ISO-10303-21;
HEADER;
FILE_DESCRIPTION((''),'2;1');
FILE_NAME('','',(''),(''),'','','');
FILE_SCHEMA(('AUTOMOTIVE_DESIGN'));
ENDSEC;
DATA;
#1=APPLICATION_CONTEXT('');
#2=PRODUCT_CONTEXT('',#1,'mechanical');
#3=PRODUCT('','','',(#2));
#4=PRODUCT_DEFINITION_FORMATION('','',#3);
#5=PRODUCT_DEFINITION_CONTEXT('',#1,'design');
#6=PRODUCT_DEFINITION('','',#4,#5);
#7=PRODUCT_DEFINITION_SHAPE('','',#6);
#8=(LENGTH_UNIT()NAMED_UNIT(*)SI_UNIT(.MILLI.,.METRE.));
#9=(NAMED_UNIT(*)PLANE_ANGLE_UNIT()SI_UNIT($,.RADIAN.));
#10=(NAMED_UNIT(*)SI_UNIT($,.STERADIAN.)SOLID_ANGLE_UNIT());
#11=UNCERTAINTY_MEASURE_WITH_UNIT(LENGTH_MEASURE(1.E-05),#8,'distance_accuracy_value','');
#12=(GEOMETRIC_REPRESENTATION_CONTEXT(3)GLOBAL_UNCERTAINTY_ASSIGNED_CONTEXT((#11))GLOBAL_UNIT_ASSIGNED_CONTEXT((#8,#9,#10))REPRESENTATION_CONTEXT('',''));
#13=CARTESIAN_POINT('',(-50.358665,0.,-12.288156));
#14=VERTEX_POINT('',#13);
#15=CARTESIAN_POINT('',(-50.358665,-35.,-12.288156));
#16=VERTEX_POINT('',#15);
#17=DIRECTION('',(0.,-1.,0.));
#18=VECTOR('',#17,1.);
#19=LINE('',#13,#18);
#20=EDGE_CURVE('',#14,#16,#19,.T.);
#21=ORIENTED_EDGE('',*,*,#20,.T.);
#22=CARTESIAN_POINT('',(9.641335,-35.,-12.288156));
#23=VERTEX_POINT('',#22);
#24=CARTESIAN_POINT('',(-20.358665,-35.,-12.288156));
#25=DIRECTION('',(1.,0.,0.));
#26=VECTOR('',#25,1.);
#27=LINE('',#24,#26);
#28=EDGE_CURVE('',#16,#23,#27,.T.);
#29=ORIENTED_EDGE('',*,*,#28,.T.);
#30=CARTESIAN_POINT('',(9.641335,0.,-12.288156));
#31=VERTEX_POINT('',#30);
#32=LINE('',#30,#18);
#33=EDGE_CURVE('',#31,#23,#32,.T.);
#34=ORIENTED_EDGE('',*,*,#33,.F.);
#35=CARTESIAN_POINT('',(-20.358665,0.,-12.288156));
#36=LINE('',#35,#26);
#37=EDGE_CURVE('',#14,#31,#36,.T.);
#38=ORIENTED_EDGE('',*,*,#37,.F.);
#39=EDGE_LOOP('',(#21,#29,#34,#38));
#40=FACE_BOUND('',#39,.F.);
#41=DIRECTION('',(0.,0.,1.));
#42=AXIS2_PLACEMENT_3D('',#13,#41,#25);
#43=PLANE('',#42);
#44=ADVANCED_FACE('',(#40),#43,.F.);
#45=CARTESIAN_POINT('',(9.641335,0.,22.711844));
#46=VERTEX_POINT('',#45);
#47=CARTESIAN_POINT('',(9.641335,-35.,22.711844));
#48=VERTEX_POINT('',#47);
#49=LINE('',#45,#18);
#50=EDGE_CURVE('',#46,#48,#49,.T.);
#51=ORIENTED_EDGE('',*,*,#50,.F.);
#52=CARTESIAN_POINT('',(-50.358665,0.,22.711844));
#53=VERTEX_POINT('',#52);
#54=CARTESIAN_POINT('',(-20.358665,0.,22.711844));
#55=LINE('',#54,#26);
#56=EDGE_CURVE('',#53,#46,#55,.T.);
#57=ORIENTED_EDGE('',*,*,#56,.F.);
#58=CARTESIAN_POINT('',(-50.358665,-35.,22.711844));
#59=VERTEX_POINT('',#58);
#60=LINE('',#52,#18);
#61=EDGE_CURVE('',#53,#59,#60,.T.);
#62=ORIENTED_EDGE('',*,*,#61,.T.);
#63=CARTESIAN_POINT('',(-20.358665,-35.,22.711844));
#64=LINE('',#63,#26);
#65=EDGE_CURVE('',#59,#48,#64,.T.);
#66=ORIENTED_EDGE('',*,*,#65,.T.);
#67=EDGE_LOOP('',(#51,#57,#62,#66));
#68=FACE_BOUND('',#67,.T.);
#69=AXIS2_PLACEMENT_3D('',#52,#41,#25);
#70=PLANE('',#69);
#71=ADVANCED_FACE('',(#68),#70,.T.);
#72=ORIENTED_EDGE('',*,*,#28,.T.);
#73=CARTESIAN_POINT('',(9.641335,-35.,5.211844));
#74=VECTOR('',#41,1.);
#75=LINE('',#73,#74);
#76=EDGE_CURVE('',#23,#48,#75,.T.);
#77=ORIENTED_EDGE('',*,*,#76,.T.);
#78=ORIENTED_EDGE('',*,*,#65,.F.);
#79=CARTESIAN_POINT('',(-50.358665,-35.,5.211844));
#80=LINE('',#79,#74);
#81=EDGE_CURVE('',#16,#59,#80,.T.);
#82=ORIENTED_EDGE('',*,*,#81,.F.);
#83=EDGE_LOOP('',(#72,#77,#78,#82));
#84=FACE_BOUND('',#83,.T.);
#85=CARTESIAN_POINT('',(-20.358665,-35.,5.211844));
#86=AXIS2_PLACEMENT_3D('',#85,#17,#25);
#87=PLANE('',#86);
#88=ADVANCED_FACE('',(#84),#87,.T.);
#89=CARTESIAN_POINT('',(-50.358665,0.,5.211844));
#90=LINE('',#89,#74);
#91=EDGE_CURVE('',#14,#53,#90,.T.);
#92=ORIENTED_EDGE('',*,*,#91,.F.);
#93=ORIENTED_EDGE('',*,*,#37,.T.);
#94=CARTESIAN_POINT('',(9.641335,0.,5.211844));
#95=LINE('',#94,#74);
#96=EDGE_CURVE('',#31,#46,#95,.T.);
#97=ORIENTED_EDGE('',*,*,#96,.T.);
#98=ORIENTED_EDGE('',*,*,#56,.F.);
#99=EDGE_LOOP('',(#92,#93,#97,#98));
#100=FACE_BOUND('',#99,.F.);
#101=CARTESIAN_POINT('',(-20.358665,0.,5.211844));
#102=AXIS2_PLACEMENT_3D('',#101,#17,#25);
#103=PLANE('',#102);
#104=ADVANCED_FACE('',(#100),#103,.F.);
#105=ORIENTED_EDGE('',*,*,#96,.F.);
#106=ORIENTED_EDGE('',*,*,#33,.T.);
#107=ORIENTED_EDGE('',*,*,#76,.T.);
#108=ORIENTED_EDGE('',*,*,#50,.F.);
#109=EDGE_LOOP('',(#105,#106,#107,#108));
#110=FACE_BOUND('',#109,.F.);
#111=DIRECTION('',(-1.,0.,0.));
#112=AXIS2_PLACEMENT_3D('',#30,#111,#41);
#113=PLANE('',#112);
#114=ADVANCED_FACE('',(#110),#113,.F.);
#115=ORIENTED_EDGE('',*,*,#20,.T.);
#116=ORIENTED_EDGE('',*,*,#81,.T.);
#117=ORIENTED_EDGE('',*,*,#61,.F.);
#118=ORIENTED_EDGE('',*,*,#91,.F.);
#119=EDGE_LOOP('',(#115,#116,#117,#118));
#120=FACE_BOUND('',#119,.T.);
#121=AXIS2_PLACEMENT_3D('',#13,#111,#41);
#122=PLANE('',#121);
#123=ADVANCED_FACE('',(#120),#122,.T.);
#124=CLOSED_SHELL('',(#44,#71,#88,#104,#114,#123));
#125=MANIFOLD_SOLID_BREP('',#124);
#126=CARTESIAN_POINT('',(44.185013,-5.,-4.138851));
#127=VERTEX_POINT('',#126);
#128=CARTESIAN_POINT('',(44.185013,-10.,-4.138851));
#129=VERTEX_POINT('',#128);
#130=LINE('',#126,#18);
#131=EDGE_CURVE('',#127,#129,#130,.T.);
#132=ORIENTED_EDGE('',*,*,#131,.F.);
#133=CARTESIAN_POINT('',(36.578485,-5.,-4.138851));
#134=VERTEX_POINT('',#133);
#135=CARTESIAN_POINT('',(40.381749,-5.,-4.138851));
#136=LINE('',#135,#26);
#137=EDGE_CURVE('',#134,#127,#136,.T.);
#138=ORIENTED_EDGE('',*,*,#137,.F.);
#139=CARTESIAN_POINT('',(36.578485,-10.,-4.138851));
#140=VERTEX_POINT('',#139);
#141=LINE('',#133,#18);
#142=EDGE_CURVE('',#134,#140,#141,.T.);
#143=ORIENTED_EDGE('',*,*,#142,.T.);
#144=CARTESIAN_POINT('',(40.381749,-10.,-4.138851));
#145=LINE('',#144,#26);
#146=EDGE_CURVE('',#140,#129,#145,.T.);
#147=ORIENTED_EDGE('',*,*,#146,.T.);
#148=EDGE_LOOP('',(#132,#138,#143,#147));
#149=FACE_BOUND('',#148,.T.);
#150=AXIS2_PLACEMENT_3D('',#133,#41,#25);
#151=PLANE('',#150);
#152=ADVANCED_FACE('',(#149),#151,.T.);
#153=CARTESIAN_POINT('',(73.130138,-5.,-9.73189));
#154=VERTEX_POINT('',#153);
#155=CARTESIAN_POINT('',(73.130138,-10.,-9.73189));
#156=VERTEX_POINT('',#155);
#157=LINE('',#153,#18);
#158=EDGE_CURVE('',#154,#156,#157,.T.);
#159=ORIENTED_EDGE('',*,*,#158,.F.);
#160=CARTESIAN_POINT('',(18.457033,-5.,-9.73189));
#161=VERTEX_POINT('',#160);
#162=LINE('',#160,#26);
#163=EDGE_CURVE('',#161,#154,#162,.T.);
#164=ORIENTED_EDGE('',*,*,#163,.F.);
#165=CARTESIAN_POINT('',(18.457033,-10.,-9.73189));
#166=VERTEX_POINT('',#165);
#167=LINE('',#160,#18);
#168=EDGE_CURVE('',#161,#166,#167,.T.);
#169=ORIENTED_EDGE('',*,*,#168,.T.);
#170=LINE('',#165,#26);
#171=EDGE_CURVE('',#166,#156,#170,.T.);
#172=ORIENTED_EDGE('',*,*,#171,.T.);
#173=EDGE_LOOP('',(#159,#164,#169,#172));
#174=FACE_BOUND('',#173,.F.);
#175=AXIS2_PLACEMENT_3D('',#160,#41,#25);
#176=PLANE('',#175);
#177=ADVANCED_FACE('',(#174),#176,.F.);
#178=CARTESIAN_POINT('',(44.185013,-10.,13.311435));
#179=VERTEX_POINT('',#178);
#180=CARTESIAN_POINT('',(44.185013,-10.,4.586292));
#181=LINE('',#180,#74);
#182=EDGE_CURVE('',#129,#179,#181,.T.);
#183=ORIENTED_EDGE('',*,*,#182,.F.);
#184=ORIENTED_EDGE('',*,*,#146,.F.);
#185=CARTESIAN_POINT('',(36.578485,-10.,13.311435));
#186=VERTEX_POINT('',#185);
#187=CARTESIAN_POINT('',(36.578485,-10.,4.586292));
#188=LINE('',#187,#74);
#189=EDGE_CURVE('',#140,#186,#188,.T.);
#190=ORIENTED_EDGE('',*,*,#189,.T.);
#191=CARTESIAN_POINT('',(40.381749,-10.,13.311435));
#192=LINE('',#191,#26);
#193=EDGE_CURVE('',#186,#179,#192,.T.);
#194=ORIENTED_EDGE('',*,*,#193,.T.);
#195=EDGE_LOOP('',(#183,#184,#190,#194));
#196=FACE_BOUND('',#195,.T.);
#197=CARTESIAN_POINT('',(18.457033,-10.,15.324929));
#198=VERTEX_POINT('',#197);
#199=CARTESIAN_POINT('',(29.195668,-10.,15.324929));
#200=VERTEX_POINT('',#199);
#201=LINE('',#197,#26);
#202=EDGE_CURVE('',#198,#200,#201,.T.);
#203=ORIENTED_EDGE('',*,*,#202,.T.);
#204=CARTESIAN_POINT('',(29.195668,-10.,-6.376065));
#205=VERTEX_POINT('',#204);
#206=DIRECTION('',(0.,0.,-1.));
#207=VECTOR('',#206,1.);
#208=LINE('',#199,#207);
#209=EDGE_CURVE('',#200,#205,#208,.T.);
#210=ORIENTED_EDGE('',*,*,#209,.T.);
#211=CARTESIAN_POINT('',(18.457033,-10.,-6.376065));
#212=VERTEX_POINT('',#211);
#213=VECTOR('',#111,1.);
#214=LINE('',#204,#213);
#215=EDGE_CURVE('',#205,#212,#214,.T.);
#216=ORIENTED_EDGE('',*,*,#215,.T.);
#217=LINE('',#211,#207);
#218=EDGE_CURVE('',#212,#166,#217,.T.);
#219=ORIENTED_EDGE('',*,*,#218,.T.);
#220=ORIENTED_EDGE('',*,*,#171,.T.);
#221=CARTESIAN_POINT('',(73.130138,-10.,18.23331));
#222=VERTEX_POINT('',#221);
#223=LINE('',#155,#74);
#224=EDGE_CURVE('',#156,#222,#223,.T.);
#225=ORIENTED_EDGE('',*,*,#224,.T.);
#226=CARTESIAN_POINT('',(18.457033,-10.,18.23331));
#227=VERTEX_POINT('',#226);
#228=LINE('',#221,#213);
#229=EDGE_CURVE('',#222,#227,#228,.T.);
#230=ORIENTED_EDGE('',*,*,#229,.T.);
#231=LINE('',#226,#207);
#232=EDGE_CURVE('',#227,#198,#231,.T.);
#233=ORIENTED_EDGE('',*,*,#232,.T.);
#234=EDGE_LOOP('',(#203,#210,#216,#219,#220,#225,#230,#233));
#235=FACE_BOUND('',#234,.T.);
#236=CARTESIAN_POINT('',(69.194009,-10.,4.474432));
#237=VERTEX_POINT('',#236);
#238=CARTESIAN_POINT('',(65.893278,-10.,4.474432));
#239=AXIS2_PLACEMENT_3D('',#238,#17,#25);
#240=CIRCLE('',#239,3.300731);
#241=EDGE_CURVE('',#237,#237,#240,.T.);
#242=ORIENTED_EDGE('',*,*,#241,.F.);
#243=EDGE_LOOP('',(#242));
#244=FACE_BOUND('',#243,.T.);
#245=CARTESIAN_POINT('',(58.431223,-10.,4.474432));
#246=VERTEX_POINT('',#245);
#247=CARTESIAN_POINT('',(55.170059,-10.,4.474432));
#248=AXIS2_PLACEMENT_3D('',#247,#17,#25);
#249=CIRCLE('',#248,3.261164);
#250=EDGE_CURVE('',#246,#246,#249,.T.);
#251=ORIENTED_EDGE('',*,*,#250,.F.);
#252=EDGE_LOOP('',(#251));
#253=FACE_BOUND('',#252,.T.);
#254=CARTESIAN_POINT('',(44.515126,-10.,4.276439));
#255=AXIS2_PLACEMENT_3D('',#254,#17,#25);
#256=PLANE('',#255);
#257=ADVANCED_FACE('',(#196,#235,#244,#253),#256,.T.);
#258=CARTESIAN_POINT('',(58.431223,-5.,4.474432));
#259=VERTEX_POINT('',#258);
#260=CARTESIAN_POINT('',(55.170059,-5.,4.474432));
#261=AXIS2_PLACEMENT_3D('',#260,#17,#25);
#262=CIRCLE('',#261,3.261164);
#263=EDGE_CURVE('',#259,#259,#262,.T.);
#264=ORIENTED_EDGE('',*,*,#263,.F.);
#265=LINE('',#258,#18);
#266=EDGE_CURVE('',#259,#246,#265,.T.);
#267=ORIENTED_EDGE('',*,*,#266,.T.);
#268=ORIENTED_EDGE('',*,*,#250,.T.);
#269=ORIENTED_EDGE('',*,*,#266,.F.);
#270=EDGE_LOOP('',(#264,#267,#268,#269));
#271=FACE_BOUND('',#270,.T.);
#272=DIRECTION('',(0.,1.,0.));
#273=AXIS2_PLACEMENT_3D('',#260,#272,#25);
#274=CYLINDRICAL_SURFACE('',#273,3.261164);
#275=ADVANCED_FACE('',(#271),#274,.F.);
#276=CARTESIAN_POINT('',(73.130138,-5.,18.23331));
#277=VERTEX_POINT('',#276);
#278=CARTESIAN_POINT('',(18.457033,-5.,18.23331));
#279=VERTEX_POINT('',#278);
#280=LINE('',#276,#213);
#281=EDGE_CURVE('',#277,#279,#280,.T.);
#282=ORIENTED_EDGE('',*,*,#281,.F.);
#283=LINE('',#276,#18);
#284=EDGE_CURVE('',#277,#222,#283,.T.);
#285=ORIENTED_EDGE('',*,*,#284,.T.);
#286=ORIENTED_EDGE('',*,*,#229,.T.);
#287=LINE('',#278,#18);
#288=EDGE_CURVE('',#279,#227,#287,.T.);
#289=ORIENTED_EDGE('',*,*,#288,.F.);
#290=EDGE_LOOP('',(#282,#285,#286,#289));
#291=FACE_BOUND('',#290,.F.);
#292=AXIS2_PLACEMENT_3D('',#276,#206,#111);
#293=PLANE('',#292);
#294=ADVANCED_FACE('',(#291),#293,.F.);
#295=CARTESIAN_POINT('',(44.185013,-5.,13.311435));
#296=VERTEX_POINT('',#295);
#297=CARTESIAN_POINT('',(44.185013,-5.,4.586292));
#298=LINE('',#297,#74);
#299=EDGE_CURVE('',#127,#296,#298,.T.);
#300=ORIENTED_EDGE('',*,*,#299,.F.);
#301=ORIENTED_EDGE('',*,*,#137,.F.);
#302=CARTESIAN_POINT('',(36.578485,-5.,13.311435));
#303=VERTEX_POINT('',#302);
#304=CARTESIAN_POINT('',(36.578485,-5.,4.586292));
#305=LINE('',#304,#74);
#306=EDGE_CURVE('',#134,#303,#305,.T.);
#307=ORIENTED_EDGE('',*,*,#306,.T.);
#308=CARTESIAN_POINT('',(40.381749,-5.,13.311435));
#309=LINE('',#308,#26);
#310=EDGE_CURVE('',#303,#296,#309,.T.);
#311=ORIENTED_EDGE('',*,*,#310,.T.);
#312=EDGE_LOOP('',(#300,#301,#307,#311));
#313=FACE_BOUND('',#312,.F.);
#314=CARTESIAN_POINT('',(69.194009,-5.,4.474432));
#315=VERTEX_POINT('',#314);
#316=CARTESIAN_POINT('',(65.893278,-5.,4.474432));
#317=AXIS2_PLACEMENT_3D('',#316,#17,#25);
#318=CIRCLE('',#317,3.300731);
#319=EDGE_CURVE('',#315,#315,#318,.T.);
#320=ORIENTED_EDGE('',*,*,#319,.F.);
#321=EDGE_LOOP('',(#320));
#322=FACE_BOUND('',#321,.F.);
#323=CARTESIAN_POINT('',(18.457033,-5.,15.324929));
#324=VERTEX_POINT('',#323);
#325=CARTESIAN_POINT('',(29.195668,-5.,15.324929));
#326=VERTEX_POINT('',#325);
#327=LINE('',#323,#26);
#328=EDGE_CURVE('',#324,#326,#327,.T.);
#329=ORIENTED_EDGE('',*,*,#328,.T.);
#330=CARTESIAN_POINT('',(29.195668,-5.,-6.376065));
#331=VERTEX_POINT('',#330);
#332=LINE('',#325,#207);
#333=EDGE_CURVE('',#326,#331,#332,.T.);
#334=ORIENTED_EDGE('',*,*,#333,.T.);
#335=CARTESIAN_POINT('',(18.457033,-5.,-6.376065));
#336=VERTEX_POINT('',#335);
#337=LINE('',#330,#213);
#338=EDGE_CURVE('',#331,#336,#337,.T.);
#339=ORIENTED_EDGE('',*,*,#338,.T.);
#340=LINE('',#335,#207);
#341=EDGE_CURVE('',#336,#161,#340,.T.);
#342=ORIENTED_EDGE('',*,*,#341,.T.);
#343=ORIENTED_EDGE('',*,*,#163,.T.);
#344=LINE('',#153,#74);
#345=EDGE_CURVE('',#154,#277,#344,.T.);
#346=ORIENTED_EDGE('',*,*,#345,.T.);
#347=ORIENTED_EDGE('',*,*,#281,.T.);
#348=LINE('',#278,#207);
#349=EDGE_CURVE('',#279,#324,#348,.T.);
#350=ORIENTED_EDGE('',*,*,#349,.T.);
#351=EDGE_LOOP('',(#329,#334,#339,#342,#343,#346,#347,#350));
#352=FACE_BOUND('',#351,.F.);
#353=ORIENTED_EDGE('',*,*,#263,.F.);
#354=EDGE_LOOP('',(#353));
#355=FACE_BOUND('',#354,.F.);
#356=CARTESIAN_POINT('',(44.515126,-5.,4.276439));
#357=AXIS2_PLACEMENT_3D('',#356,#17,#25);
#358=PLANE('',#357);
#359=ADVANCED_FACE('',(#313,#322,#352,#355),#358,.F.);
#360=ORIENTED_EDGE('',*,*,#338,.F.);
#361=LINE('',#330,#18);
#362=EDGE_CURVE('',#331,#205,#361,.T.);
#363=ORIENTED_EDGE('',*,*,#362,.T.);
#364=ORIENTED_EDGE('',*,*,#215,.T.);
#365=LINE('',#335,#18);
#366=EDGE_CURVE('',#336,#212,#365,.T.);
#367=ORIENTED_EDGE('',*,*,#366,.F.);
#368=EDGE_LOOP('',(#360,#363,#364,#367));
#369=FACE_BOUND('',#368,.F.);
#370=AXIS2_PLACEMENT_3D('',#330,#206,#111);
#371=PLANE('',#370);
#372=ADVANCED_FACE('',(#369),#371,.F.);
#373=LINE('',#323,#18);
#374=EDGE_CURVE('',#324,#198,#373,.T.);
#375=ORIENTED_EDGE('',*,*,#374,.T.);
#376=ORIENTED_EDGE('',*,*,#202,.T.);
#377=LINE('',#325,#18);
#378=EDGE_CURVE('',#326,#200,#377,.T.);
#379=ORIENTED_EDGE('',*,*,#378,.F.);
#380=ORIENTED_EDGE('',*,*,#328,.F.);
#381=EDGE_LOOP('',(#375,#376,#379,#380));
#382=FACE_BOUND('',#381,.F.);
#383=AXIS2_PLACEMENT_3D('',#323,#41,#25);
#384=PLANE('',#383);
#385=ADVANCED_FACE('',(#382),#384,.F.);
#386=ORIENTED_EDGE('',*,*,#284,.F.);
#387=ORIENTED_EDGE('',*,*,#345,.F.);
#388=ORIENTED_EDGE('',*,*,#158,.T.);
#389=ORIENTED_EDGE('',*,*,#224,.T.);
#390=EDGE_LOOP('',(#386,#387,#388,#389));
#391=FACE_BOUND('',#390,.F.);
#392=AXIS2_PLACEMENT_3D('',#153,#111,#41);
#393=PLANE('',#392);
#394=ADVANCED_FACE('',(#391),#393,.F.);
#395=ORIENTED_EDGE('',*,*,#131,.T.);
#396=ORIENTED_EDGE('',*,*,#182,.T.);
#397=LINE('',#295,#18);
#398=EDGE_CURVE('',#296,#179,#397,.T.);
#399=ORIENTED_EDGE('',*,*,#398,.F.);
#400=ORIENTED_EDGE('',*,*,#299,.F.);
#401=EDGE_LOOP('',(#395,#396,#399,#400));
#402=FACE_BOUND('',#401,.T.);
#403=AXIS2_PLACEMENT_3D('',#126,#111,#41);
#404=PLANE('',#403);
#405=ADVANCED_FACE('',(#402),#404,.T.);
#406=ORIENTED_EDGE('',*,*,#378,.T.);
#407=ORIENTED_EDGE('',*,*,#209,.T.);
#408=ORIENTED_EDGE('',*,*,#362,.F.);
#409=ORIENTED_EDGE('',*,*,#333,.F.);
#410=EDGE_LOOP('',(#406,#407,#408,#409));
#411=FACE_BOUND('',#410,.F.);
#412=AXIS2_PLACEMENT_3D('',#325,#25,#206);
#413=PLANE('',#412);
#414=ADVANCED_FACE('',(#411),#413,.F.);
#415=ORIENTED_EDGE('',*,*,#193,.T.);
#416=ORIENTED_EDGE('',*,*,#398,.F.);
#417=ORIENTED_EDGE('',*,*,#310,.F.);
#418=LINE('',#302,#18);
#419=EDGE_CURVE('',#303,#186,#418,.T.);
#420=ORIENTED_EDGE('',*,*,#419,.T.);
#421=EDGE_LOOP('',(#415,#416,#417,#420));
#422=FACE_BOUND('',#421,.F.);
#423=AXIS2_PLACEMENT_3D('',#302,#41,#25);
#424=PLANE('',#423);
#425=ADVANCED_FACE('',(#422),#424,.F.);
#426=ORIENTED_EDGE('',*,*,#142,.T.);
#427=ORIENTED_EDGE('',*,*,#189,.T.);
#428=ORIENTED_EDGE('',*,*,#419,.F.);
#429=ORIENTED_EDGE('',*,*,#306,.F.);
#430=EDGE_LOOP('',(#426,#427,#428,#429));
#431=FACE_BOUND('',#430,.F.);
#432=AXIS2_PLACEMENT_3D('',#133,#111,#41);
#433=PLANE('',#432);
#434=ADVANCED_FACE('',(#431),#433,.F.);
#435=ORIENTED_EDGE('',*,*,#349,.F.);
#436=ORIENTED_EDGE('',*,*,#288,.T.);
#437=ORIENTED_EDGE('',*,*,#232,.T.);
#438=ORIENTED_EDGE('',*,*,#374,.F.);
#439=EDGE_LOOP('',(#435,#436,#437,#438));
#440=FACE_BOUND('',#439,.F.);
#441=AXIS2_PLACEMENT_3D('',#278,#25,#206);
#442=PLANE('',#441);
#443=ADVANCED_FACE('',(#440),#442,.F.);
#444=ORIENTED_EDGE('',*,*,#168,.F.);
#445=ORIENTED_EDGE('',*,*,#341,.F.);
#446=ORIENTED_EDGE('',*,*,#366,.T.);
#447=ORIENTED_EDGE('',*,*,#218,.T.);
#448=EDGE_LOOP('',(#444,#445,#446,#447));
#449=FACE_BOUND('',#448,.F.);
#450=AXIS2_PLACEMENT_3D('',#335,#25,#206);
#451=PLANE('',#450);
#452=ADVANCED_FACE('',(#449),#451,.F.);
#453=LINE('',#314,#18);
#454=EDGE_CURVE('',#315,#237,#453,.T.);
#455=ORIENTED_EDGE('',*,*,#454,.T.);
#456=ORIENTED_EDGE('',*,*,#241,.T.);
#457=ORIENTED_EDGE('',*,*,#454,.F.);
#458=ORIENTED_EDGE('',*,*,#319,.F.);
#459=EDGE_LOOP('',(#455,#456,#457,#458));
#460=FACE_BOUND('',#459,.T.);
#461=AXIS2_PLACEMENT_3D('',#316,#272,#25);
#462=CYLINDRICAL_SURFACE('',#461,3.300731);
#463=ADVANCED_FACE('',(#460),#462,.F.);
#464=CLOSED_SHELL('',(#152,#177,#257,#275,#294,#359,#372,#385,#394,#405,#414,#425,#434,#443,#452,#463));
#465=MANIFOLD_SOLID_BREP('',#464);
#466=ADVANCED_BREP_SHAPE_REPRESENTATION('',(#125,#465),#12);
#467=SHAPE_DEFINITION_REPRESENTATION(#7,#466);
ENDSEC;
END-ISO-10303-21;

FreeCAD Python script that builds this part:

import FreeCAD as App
import Part
import Sketcher

V = App.Vector
Q = App.Units.Quantity


def add_polygon(sketch, points):
    """Adds a closed chain of lines whose ends are joined by coincident constraints."""
    first, n = sketch.GeometryCount, len(points)
    for a, b in zip(points, points[1:] + points[:1]):
        sketch.addGeometry(Part.LineSegment(App.Vector(*a, 0), App.Vector(*b, 0)), False)
    for i in range(n):
        sketch.addConstraint(Sketcher.Constraint("Coincident", first + i, 2, first + (i + 1) % n, 1))

doc = App.newDocument("Part")
body = doc.addObject("PartDesign::Body", "Body")

sketch1 = doc.addObject("Sketcher::SketchObject", "Sketch")
body.addObject(sketch1)
sketch1.AttachmentSupport = (doc.XZ_Plane, [""])
sketch1.MapMode = "FlatFace"
add_polygon(sketch1, [(-50.358665, 22.711844), (-50.358665, -12.288156), (9.641335, -12.288156), (9.641335, 22.711844)])
sketch1.addConstraint([
    Sketcher.Constraint("Vertical", 0),
    Sketcher.Constraint("Horizontal", 1),
    Sketcher.Constraint("Vertical", 2),
    Sketcher.Constraint("Horizontal", 3),
    Sketcher.Constraint("DistanceX", 1, 1, 1, 2, Q("60 mm")),
    Sketcher.Constraint("DistanceY", 0, 2, 0, 1, Q("35 mm")),
    Sketcher.Constraint("DistanceX", 0, 2, -1, 1, Q("50.358665 mm")),
    Sketcher.Constraint("DistanceY", 0, 2, -1, 1, Q("12.288156 mm")),
])
pad1 = doc.addObject("PartDesign::Pad", "Pad")
body.addObject(pad1)
pad1.Profile = sketch1
pad1.Length = 35
body2 = doc.addObject("PartDesign::Body", "Body001")

sketch2 = doc.addObject("Sketcher::SketchObject", "Sketch001")
body2.addObject(sketch2)
sketch2.AttachmentSupport = (doc.getObject("XZ_Plane001"), [""])
sketch2.MapMode = "FlatFace"
sketch2.AttachmentOffset = App.Placement(V(0, 0, 5), App.Rotation())
add_polygon(sketch2, [(73.130138, 18.23331), (18.457033, 18.23331), (18.457033, 15.324929), (29.195668, 15.324929), (29.195668, -6.376065), (18.457033, -6.376065), (18.457033, -9.73189), (73.130138, -9.73189)])
sketch2.addGeometry(Part.Circle(V(55.170059, 4.474432, 0), V(0, 0, 1), 3.261164), False)
sketch2.addGeometry(Part.Circle(V(65.893278, 4.474432, 0), V(0, 0, 1), 3.300731), False)
add_polygon(sketch2, [(44.185013, -4.138851), (36.578485, -4.138851), (36.578485, 13.311435), (44.185013, 13.311435)])
sketch2.addConstraint([
    Sketcher.Constraint("Horizontal", 0),
    Sketcher.Constraint("Vertical", 1),
    Sketcher.Constraint("Horizontal", 2),
    Sketcher.Constraint("Vertical", 3),
    Sketcher.Constraint("Horizontal", 4),
    Sketcher.Constraint("Vertical", 5),
    Sketcher.Constraint("Horizontal", 6),
    Sketcher.Constraint("Vertical", 7),
    Sketcher.Constraint("Horizontal", 10),
    Sketcher.Constraint("Vertical", 11),
    Sketcher.Constraint("Horizontal", 12),
    Sketcher.Constraint("Vertical", 13),
    Sketcher.Constraint("Horizontal", 8, 3, 9, 3),
    Sketcher.Constraint("Vertical", 1, 2, 4, 2),
    Sketcher.Constraint("Diameter", 9, Q("6.601462 mm")),
    Sketcher.Constraint("Diameter", 8, Q("6.522328 mm")),
    Sketcher.Constraint("DistanceY", 7, 1, 7, 2, Q("27.9652 mm")),
    Sketcher.Constraint("DistanceX", 10, 2, 10, 1, Q("7.606529 mm")),
    Sketcher.Constraint("DistanceY", 1, 2, 1, 1, Q("2.908381 mm")),
    Sketcher.Constraint("DistanceX", 0, 2, 0, 1, Q("54.673105 mm")),
    Sketcher.Constraint("DistanceX", 2, 1, 2, 2, Q("10.738635 mm")),
    Sketcher.Constraint("DistanceY", 3, 2, 3, 1, Q("21.700994 mm")),
    Sketcher.Constraint("DistanceY", 11, 1, 11, 2, Q("17.450285 mm")),
    Sketcher.Constraint("DistanceX", -1, 1, 8, 3, Q("55.170059 mm")),
    Sketcher.Constraint("DistanceY", -1, 1, 0, 2, Q("18.23331 mm")),
    Sketcher.Constraint("DistanceX", -1, 1, 2, 2, Q("29.195668 mm")),
    Sketcher.Constraint("DistanceY", 10, 2, -1, 1, Q("4.138851 mm")),
    Sketcher.Constraint("DistanceX", 8, 3, 9, 3, Q("10.723219 mm")),
    Sketcher.Constraint("DistanceX", 4, 2, 10, 2, Q("18.121452 mm")),
    Sketcher.Constraint("DistanceY", -1, 1, 8, 3, Q("4.474432 mm")),
])
pad2 = doc.addObject("PartDesign::Pad", "Pad001")
body2.addObject(pad2)
pad2.Profile = sketch2
pad2.Length = 5

doc.recompute()
